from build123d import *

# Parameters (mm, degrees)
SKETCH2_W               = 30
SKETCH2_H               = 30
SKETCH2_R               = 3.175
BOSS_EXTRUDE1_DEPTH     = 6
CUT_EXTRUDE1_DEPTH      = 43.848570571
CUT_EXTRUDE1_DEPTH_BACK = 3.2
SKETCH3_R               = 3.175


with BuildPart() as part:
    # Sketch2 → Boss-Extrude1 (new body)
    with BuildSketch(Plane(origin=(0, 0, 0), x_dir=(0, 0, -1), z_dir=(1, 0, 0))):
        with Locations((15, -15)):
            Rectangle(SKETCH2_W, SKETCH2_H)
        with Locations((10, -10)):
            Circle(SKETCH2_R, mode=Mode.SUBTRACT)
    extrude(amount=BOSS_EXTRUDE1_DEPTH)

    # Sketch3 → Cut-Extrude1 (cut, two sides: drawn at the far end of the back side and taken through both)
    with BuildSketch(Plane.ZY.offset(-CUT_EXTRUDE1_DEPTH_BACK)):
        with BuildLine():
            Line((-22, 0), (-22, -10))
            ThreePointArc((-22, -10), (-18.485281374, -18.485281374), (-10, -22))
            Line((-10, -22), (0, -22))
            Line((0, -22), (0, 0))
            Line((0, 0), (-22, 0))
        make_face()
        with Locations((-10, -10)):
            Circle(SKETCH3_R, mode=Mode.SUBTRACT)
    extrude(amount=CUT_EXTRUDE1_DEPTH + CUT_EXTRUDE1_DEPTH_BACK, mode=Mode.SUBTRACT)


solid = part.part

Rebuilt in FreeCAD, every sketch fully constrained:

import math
import FreeCAD as App
import Part
import Sketcher

V = App.Vector
Q = App.Units.Quantity

doc = App.newDocument("Part")
params = doc.addObject("Spreadsheet::Sheet", "Params")
for row, (alias, value) in enumerate([
    ("sketch1_diameter", "6.35 mm"),
    ("sketch1_width", "30 mm"),
    ("pad1_length", "6 mm"),
    ("sketch2_radius", "12 mm"),
    ("sketch2_diameter", "6.35 mm"),
    ("sketch2_width", "10 mm"),
    ("pocket1_length", "43.848571 mm"),
    ("pocket1_length2", "3.2 mm"),
], start=1):
    params.set(f"A{row}", alias)
    params.set(f"B{row}", "=" + value)
    params.setAlias(f"B{row}", alias)

body = doc.addObject("PartDesign::Body", "Body")

sketch1 = body.newObject("Sketcher::SketchObject", "Sketch")
sketch1.AttachmentSupport = (doc.getObject("YZ_Plane"), [""])
sketch1.MapMode = "FlatFace"
sketch1.addGeometry([
    Part.LineSegment(V(0, 0, 0), V(-30, 0, 0)),
    Part.LineSegment(V(-30, 0, 0), V(-30, -30, 0)),
    Part.LineSegment(V(-30, -30, 0), V(0, -30, 0)),
    Part.LineSegment(V(0, -30, 0), V(0, 0, 0)),
    Part.Circle(V(-10, -10, 0), V(0, 0, 1), 3.2),
], False)
sketch1.addConstraint([
    Sketcher.Constraint("Coincident", 0, 2, 1, 1),
    Sketcher.Constraint("Coincident", 1, 2, 2, 1),
    Sketcher.Constraint("Coincident", 2, 2, 3, 1),
    Sketcher.Constraint("Coincident", 3, 2, 0, 1),
    Sketcher.Constraint("Horizontal", 0),
    Sketcher.Constraint("Vertical", 1),
    Sketcher.Constraint("Horizontal", 2),
    Sketcher.Constraint("Vertical", 3),
    Sketcher.Constraint("Coincident", 3, 2, -1, 1),
    Sketcher.Constraint("Equal", 2, 1),
    Sketcher.Constraint("Diameter", 4, Q("6.35 mm")),
    Sketcher.Constraint("DistanceX", 0, 2, 0, 1, Q("30 mm")),
    Sketcher.Constraint("DistanceX", 4, 3, -1, 1, Q("10 mm")),
    Sketcher.Constraint("DistanceY", 4, 3, -1, 1, Q("10 mm")),
])
sketch1.setExpression("Constraints[10]", "Params.sketch1_diameter")
sketch1.setExpression("Constraints[11]", "Params.sketch1_width")
pad1 = body.newObject("PartDesign::Pad", "Pad")
pad1.Profile = sketch1
pad1.setExpression("Length", "Params.pad1_length")

sketch2 = body.newObject("Sketcher::SketchObject", "Sketch001")
sketch2.AttachmentSupport = (doc.getObject("YZ_Plane"), [""])
sketch2.MapMode = "FlatFace"
sketch2.addGeometry([
    Part.LineSegment(V(0, -22, 0), V(-10, -22, 0)),
    Part.ArcOfCircle(Part.Circle(V(-10, -10, 0), V(0, 0, 1), 12), math.radians(-180), math.radians(-90)),
    Part.LineSegment(V(-22, -10, 0), V(-22, 0, 0)),
    Part.LineSegment(V(-22, 0, 0), V(0, 0, 0)),
    Part.LineSegment(V(0, 0, 0), V(0, -22, 0)),
    Part.Circle(V(-10, -10, 0), V(0, 0, 1), 3.2),
], False)
sketch2.addConstraint([
    Sketcher.Constraint("Tangent", 0, 2, 1, 2),
    Sketcher.Constraint("Tangent", 1, 1, 2, 1),
    Sketcher.Constraint("Coincident", 2, 2, 3, 1),
    Sketcher.Constraint("Coincident", 3, 2, 4, 1),
    Sketcher.Constraint("Coincident", 4, 2, 0, 1),
    Sketcher.Constraint("Horizontal", 0),
    Sketcher.Constraint("Vertical", 2),
    Sketcher.Constraint("Horizontal", 3),
    Sketcher.Constraint("Vertical", 4),
    Sketcher.Constraint("Coincident", 3, 2, -1, 1),
    Sketcher.Constraint("Coincident", 5, 3, 1, 3),
    Sketcher.Constraint("Equal", 0, 2),
    Sketcher.Constraint("Radius", 1, Q("12 mm")),
    Sketcher.Constraint("Diameter", 5, Q("6.35 mm")),
    Sketcher.Constraint("DistanceX", 0, 2, 0, 1, Q("10 mm")),
])
sketch2.setExpression("Constraints[12]", "Params.sketch2_radius")
sketch2.setExpression("Constraints[13]", "Params.sketch2_diameter")
sketch2.setExpression("Constraints[14]", "Params.sketch2_width")
pocket1 = body.newObject("PartDesign::Pocket", "Pocket")
pocket1.Profile = sketch2
pocket1.Type = "TwoLengths"
pocket1.setExpression("Length", "Params.pocket1_length")
pocket1.setExpression("Length2", "Params.pocket1_length2")

doc.recompute()
